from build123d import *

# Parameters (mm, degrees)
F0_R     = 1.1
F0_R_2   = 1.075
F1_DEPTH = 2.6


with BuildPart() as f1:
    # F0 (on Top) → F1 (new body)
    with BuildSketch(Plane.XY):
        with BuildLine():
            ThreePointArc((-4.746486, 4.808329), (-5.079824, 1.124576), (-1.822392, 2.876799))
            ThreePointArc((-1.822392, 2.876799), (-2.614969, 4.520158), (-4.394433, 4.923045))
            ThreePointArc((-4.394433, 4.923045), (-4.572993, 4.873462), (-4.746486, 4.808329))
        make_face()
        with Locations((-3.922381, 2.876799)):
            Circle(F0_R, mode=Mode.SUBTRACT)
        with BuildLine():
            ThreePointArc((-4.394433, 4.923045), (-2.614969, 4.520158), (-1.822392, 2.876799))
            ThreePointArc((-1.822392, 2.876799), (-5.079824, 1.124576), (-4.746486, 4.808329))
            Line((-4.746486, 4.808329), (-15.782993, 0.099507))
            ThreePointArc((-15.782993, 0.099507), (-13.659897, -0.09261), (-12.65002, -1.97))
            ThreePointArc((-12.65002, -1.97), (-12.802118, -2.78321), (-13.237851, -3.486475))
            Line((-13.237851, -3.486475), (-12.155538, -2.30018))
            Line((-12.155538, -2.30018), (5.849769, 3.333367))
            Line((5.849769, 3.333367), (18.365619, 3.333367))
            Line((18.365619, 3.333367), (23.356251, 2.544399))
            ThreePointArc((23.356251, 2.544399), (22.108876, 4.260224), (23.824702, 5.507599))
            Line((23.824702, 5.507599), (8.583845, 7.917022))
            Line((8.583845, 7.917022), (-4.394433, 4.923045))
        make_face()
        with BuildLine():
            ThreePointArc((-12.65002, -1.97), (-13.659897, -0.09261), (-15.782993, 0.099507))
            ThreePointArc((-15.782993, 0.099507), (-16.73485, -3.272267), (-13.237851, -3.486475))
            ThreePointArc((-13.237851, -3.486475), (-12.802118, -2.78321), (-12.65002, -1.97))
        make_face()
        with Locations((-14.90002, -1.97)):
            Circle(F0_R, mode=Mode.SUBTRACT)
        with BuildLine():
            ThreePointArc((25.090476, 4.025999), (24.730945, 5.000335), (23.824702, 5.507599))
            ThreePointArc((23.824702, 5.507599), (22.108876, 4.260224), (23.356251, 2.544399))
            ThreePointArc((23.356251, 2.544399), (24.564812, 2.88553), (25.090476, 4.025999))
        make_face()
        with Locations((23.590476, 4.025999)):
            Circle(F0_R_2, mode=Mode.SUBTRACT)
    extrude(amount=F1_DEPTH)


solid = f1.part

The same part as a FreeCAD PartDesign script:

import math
import FreeCAD as App
import Part
import Sketcher

doc = App.newDocument("Part")
params = doc.addObject("Spreadsheet::Sheet", "Params")
for row, (alias, value) in enumerate([
    ("sketch1_diameter", "2.2 mm"),
    ("sketch1_diameter2", "2.2 mm"),
    ("sketch1_radius", "1.5 mm"),
    ("sketch1_diameter3", "2.15 mm"),
    ("sketch1_radius2", "2.25 mm"),
    ("pad1_length", "2.6 mm"),
], start=1):
    params.set(f"A{row}", alias)
    params.set(f"B{row}", "=" + value)
    params.setAlias(f"B{row}", alias)

body = doc.addObject("PartDesign::Body", "Body")

sketch1 = body.newObject("Sketcher::SketchObject", "Sketch")
sketch1.AttachmentSupport = (doc.getObject("XY_Plane"), [""])
sketch1.MapMode = "FlatFace"
sketch1.addGeometry([
    Part.ArcOfCircle(Part.Circle(App.Vector(-3.922432, 2.876951, 0), App.Vector(0, 0, 1), 2.09983), math.radians(102.989963), math.radians(113.106298)),
    Part.LineSegment(App.Vector(-4.746486, 4.808329, 0), App.Vector(-15.782993, 0.099507, 0)),
    Part.ArcOfCircle(Part.Circle(App.Vector(-14.90002, -1.97, 0), App.Vector(0, 0, 1), 2.25), math.radians(113.105942), math.radians(317.624328)),
    Part.LineSegment(App.Vector(-13.237851, -3.486475, 0), App.Vector(-12.155538, -2.30018, 0)),
    Part.LineSegment(App.Vector(-12.155538, -2.30018, 0), App.Vector(5.849769, 3.333367, 0)),
    Part.LineSegment(App.Vector(5.849769, 3.333367, 0), App.Vector(18.365619, 3.333367, 0)),
    Part.LineSegment(App.Vector(18.365619, 3.333367, 0), App.Vector(23.356251, 2.544399, 0)),
    Part.ArcOfCircle(Part.Circle(App.Vector(23.590476, 4.025999, 0), App.Vector(0, 0, 1), 1.5), math.radians(-98.983505), math.radians(0.000006)),
    Part.ArcOfCircle(Part.Circle(App.Vector(23.590476, 4.025999, 0), App.Vector(0, 0, 1), 1.5), math.radians(-0.000003), math.radians(81.01646)),
    Part.LineSegment(App.Vector(23.824702, 5.507599, 0), App.Vector(8.583845, 7.917022, 0)),
    Part.LineSegment(App.Vector(8.583845, 7.917022, 0), App.Vector(-4.394433, 4.923045, 0)),
    Part.Circle(App.Vector(-14.90002, -1.97, 0), App.Vector(0, 0, 1), 1.1),
    Part.Circle(App.Vector(-3.922381, 2.876799, 0), App.Vector(0, 0, 1), 1.1),
    Part.Circle(App.Vector(23.590476, 4.025999, 0), App.Vector(0, 0, 1), 1.075),
], False)
sketch1.addConstraint([
    Sketcher.Constraint("Coincident", 0, 2, 1, 1),
    Sketcher.Constraint("Coincident", 1, 2, 2, 1),
    Sketcher.Constraint("Coincident", 2, 2, 3, 1),
    Sketcher.Constraint("Coincident", 3, 2, 4, 1),
    Sketcher.Constraint("Coincident", 4, 2, 5, 1),
    Sketcher.Constraint("Coincident", 5, 2, 6, 1),
    Sketcher.Constraint("Coincident", 6, 2, 7, 1),
    Sketcher.Constraint("Coincident", 7, 2, 8, 1),
    Sketcher.Constraint("Coincident", 8, 2, 9, 1),
    Sketcher.Constraint("Coincident", 9, 2, 10, 1),
    Sketcher.Constraint("Coincident", 10, 2, 0, 1),
    Sketcher.Constraint("Horizontal", 5),
    Sketcher.Constraint("Coincident", 8, 3, 7, 3),
    Sketcher.Constraint("Coincident", 11, 3, 2, 3),
    Sketcher.Constraint("Coincident", 13, 3, 7, 3),
    Sketcher.Constraint("Diameter", 11, 2.2),
    Sketcher.Constraint("Diameter", 12, 2.2),
    Sketcher.Constraint("Radius", 7, 1.5),
    Sketcher.Constraint("Diameter", 13, 2.15),
    Sketcher.Constraint("Radius", 2, 2.25),
    Sketcher.Constraint("DistanceY", 2, 3, -1, 1, 1.97),
    Sketcher.Constraint("Radius", 0, 2.09983),
    Sketcher.Constraint("DistanceY", -1, 1, 7, 3, 4.025999),
    Sketcher.Constraint("DistanceY", -1, 1, 7, 2, 4.025999),
    Sketcher.Constraint("DistanceX", 12, 3, 5, 2, 22.288),
    Sketcher.Constraint("DistanceX", 10, 2, 0, 3, 0.472001),
    Sketcher.Constraint("DistanceX", 5, 1, 5, 2, 12.51585),
    Sketcher.Constraint("DistanceY", -1, 1, 12, 3, 2.876799),
    Sketcher.Constraint("DistanceY", -1, 1, 6, 2, 2.544399),
    Sketcher.Constraint("DistanceX", -1, 1, 8, 2, 23.824702),
    Sketcher.Constraint("DistanceY", -1, 1, 8, 2, 5.507599),
    Sketcher.Constraint("DistanceX", 0, 3, 4, 2, 9.772201),
    Sketcher.Constraint("Distance", 6, 5.052611),
    Sketcher.Constraint("DistanceY", -1, 1, 0, 3, 2.876951),
    Sketcher.Constraint("DistanceX", 2, 3, -1, 1, 14.90002),
    Sketcher.Constraint("DistanceX", 12, 3, -1, 1, 3.922381),
    Sketcher.Constraint("DistanceY", -1, 1, 0, 2, 4.808329),
    Sketcher.Constraint("DistanceX", 2, 2, -1, 1, 13.237851),
    Sketcher.Constraint("DistanceY", 3, 2, -1, 1, 2.30018),
    Sketcher.Constraint("DistanceX", 1, 2, 0, 3, 11.860561),
    Sketcher.Constraint("DistanceX", 2, 3, 3, 2, 2.744482),
    Sketcher.Constraint("DistanceY", 0, 3, 9, 2, 5.040071),
    Sketcher.Constraint("DistanceX", 0, 2, 9, 2, 13.330331),
])
sketch1.setExpression("Constraints[15]", "Params.sketch1_diameter")
sketch1.setExpression("Constraints[16]", "Params.sketch1_diameter2")
sketch1.setExpression("Constraints[17]", "Params.sketch1_radius")
sketch1.setExpression("Constraints[18]", "Params.sketch1_diameter3")
sketch1.setExpression("Constraints[19]", "Params.sketch1_radius2")
pad1 = body.newObject("PartDesign::Pad", "Pad")
pad1.Profile = sketch1
pad1.setExpression("Length", "Params.pad1_length")

doc.recompute()
